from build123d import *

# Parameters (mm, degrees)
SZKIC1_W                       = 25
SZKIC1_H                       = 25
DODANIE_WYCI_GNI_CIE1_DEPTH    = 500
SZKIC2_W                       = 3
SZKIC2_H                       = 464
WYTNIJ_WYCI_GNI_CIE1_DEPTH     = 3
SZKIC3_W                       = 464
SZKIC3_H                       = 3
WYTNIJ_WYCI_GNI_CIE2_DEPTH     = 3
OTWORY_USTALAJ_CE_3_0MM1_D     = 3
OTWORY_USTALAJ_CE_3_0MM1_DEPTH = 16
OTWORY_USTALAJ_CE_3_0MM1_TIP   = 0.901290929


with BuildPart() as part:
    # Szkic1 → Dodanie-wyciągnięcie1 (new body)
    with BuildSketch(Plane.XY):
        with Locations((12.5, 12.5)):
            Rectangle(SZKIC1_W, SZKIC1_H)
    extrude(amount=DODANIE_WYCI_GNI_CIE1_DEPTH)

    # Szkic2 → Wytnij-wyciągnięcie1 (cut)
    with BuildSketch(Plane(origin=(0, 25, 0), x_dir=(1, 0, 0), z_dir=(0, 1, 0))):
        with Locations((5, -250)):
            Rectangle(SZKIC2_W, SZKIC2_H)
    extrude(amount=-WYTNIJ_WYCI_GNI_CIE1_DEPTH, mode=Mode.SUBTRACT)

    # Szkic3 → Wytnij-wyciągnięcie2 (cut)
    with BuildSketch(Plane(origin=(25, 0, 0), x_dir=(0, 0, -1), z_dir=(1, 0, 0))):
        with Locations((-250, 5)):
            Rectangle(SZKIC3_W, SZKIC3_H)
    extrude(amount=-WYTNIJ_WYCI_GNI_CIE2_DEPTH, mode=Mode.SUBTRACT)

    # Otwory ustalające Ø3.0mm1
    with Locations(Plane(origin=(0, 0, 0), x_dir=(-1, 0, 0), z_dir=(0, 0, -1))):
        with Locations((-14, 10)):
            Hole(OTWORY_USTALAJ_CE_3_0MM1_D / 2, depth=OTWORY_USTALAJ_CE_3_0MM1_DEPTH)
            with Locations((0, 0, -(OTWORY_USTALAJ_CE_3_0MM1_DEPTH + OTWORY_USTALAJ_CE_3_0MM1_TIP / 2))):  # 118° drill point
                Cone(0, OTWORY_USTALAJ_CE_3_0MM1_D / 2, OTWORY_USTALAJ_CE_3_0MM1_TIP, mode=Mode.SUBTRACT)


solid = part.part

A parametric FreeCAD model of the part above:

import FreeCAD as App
import Part
import Sketcher

V = App.Vector


def add_polygon(sketch, points):
    """Adds a closed chain of lines whose ends are joined by coincident constraints."""
    first, n = sketch.GeometryCount, len(points)
    for a, b in zip(points, points[1:] + points[:1]):
        sketch.addGeometry(Part.LineSegment(App.Vector(*a, 0), App.Vector(*b, 0)), False)
    for i in range(n):
        sketch.addConstraint(Sketcher.Constraint("Coincident", first + i, 2, first + (i + 1) % n, 1))

doc = App.newDocument("Part")
params = doc.addObject("Spreadsheet::Sheet", "Params")
for row, (alias, value) in enumerate([
    ("sketch1_width", "25 mm"),
    ("pad1_length", "500 mm"),
    ("sketch2_width", "3 mm"),
    ("sketch2_height", "464 mm"),
    ("pocket1_length", "3 mm"),
    ("sketch3_width", "3 mm"),
    ("sketch3_height", "464 mm"),
    ("pocket2_length", "3 mm"),
    ("sketch4_diameter", "3 mm"),
    ("hole_diameter", "3 mm"),
    ("hole_depth", "16 mm"),
], start=1):
    params.set(f"A{row}", alias)
    params.set(f"B{row}", "=" + value)
    params.setAlias(f"B{row}", alias)

body = doc.addObject("PartDesign::Body", "Body")

sketch1 = doc.addObject("Sketcher::SketchObject", "Sketch")
body.addObject(sketch1)
sketch1.AttachmentSupport = (doc.XY_Plane, [""])
sketch1.MapMode = "FlatFace"
add_polygon(sketch1, [(0, 25), (0, 0), (25, 0), (25, 25)])
sketch1.addConstraint(Sketcher.Constraint("Vertical", 0))
sketch1.addConstraint(Sketcher.Constraint("Horizontal", 1))
sketch1.addConstraint(Sketcher.Constraint("Vertical", 2))
sketch1.addConstraint(Sketcher.Constraint("Horizontal", 3))
sketch1.addConstraint(Sketcher.Constraint("Coincident", 0, 2, -1, 1))
sketch1.addConstraint(Sketcher.Constraint("Equal", 3, 0))
sketch1.addConstraint(Sketcher.Constraint("DistanceX", 1, 1, 1, 2, 25.0))
sketch1.setExpression("Constraints[10]", "Params.sketch1_width")
pad1 = doc.addObject("PartDesign::Pad", "Pad")
body.addObject(pad1)
pad1.Profile = sketch1
pad1.setExpression("Length", "Params.pad1_length")

sketch2 = doc.addObject("Sketcher::SketchObject", "Sketch001")
body.addObject(sketch2)
sketch2.AttachmentSupport = (doc.XZ_Plane, [""])
sketch2.MapMode = "FlatFace"
sketch2.AttachmentOffset = App.Placement(V(0, 0, -25), App.Rotation())
add_polygon(sketch2, [(3.5, 18), (3.5, 482), (6.5, 482), (6.5, 18)])
sketch2.addConstraint(Sketcher.Constraint("Vertical", 0))
sketch2.addConstraint(Sketcher.Constraint("Horizontal", 1))
sketch2.addConstraint(Sketcher.Constraint("Vertical", 2))
sketch2.addConstraint(Sketcher.Constraint("Horizontal", 3))
sketch2.addConstraint(Sketcher.Constraint("DistanceX", 1, 1, 1, 2, 3.0))
sketch2.addConstraint(Sketcher.Constraint("DistanceY", 0, 1, 0, 2, 464.0))
sketch2.addConstraint(Sketcher.Constraint("DistanceY", -1, 1, 0, 2, 482.0))
sketch2.addConstraint(Sketcher.Constraint("DistanceX", -1, 1, 0, 2, 3.5))
sketch2.setExpression("Constraints[8]", "Params.sketch2_width")
sketch2.setExpression("Constraints[9]", "Params.sketch2_height")
pocket1 = doc.addObject("PartDesign::Pocket", "Pocket")
body.addObject(pocket1)
pocket1.Profile = sketch2
pocket1.setExpression("Length", "Params.pocket1_length")
pocket1.Reversed = True

sketch3 = doc.addObject("Sketcher::SketchObject", "Sketch002")
body.addObject(sketch3)
sketch3.AttachmentSupport = (doc.YZ_Plane, [""])
sketch3.MapMode = "FlatFace"
sketch3.AttachmentOffset = App.Placement(V(0, 0, 25), App.Rotation())
add_polygon(sketch3, [(6.5, 482), (3.5, 482), (3.5, 18), (6.5, 18)])
sketch3.addConstraint(Sketcher.Constraint("Horizontal", 0))
sketch3.addConstraint(Sketcher.Constraint("Vertical", 1))
sketch3.addConstraint(Sketcher.Constraint("Horizontal", 2))
sketch3.addConstraint(Sketcher.Constraint("Vertical", 3))
sketch3.addConstraint(Sketcher.Constraint("DistanceX", 0, 2, 0, 1, 3.0))
sketch3.addConstraint(Sketcher.Constraint("DistanceY", 1, 2, 1, 1, 464.0))
sketch3.addConstraint(Sketcher.Constraint("DistanceY", -1, 1, 0, 2, 482.0))
sketch3.addConstraint(Sketcher.Constraint("DistanceX", -1, 1, 0, 2, 3.5))
sketch3.setExpression("Constraints[8]", "Params.sketch3_width")
sketch3.setExpression("Constraints[9]", "Params.sketch3_height")
pocket2 = doc.addObject("PartDesign::Pocket", "Pocket001")
body.addObject(pocket2)
pocket2.Profile = sketch3
pocket2.setExpression("Length", "Params.pocket2_length")

sketch4 = doc.addObject("Sketcher::SketchObject", "Sketch003")
body.addObject(sketch4)
sketch4.AttachmentSupport = (doc.XY_Plane, [""])
sketch4.MapMode = "FlatFace"
sketch4.addGeometry(Part.Circle(V(14, 10, 0), V(0, 0, 1), 1.5), False)
sketch4.addConstraint(Sketcher.Constraint("Diameter", 0, 3.0))
sketch4.addConstraint(Sketcher.Constraint("DistanceX", -1, 1, 0, 3, 14.0))
sketch4.addConstraint(Sketcher.Constraint("DistanceY", -1, 1, 0, 3, 10.0))
sketch4.setExpression("Constraints[0]", "Params.sketch4_diameter")
doc.recompute()
hole = doc.addObject("PartDesign::Hole", "Hole")
body.addObject(hole)
hole.Profile = sketch4
hole.ThreadType = "None"
hole.setExpression("Diameter", "Params.hole_diameter")
hole.DepthType = "Dimension"
hole.setExpression("Depth", "Params.hole_depth")
hole.DrillPoint = "Angled"
hole.DrillPointAngle = 118
hole.Reversed = True

doc.recompute()
